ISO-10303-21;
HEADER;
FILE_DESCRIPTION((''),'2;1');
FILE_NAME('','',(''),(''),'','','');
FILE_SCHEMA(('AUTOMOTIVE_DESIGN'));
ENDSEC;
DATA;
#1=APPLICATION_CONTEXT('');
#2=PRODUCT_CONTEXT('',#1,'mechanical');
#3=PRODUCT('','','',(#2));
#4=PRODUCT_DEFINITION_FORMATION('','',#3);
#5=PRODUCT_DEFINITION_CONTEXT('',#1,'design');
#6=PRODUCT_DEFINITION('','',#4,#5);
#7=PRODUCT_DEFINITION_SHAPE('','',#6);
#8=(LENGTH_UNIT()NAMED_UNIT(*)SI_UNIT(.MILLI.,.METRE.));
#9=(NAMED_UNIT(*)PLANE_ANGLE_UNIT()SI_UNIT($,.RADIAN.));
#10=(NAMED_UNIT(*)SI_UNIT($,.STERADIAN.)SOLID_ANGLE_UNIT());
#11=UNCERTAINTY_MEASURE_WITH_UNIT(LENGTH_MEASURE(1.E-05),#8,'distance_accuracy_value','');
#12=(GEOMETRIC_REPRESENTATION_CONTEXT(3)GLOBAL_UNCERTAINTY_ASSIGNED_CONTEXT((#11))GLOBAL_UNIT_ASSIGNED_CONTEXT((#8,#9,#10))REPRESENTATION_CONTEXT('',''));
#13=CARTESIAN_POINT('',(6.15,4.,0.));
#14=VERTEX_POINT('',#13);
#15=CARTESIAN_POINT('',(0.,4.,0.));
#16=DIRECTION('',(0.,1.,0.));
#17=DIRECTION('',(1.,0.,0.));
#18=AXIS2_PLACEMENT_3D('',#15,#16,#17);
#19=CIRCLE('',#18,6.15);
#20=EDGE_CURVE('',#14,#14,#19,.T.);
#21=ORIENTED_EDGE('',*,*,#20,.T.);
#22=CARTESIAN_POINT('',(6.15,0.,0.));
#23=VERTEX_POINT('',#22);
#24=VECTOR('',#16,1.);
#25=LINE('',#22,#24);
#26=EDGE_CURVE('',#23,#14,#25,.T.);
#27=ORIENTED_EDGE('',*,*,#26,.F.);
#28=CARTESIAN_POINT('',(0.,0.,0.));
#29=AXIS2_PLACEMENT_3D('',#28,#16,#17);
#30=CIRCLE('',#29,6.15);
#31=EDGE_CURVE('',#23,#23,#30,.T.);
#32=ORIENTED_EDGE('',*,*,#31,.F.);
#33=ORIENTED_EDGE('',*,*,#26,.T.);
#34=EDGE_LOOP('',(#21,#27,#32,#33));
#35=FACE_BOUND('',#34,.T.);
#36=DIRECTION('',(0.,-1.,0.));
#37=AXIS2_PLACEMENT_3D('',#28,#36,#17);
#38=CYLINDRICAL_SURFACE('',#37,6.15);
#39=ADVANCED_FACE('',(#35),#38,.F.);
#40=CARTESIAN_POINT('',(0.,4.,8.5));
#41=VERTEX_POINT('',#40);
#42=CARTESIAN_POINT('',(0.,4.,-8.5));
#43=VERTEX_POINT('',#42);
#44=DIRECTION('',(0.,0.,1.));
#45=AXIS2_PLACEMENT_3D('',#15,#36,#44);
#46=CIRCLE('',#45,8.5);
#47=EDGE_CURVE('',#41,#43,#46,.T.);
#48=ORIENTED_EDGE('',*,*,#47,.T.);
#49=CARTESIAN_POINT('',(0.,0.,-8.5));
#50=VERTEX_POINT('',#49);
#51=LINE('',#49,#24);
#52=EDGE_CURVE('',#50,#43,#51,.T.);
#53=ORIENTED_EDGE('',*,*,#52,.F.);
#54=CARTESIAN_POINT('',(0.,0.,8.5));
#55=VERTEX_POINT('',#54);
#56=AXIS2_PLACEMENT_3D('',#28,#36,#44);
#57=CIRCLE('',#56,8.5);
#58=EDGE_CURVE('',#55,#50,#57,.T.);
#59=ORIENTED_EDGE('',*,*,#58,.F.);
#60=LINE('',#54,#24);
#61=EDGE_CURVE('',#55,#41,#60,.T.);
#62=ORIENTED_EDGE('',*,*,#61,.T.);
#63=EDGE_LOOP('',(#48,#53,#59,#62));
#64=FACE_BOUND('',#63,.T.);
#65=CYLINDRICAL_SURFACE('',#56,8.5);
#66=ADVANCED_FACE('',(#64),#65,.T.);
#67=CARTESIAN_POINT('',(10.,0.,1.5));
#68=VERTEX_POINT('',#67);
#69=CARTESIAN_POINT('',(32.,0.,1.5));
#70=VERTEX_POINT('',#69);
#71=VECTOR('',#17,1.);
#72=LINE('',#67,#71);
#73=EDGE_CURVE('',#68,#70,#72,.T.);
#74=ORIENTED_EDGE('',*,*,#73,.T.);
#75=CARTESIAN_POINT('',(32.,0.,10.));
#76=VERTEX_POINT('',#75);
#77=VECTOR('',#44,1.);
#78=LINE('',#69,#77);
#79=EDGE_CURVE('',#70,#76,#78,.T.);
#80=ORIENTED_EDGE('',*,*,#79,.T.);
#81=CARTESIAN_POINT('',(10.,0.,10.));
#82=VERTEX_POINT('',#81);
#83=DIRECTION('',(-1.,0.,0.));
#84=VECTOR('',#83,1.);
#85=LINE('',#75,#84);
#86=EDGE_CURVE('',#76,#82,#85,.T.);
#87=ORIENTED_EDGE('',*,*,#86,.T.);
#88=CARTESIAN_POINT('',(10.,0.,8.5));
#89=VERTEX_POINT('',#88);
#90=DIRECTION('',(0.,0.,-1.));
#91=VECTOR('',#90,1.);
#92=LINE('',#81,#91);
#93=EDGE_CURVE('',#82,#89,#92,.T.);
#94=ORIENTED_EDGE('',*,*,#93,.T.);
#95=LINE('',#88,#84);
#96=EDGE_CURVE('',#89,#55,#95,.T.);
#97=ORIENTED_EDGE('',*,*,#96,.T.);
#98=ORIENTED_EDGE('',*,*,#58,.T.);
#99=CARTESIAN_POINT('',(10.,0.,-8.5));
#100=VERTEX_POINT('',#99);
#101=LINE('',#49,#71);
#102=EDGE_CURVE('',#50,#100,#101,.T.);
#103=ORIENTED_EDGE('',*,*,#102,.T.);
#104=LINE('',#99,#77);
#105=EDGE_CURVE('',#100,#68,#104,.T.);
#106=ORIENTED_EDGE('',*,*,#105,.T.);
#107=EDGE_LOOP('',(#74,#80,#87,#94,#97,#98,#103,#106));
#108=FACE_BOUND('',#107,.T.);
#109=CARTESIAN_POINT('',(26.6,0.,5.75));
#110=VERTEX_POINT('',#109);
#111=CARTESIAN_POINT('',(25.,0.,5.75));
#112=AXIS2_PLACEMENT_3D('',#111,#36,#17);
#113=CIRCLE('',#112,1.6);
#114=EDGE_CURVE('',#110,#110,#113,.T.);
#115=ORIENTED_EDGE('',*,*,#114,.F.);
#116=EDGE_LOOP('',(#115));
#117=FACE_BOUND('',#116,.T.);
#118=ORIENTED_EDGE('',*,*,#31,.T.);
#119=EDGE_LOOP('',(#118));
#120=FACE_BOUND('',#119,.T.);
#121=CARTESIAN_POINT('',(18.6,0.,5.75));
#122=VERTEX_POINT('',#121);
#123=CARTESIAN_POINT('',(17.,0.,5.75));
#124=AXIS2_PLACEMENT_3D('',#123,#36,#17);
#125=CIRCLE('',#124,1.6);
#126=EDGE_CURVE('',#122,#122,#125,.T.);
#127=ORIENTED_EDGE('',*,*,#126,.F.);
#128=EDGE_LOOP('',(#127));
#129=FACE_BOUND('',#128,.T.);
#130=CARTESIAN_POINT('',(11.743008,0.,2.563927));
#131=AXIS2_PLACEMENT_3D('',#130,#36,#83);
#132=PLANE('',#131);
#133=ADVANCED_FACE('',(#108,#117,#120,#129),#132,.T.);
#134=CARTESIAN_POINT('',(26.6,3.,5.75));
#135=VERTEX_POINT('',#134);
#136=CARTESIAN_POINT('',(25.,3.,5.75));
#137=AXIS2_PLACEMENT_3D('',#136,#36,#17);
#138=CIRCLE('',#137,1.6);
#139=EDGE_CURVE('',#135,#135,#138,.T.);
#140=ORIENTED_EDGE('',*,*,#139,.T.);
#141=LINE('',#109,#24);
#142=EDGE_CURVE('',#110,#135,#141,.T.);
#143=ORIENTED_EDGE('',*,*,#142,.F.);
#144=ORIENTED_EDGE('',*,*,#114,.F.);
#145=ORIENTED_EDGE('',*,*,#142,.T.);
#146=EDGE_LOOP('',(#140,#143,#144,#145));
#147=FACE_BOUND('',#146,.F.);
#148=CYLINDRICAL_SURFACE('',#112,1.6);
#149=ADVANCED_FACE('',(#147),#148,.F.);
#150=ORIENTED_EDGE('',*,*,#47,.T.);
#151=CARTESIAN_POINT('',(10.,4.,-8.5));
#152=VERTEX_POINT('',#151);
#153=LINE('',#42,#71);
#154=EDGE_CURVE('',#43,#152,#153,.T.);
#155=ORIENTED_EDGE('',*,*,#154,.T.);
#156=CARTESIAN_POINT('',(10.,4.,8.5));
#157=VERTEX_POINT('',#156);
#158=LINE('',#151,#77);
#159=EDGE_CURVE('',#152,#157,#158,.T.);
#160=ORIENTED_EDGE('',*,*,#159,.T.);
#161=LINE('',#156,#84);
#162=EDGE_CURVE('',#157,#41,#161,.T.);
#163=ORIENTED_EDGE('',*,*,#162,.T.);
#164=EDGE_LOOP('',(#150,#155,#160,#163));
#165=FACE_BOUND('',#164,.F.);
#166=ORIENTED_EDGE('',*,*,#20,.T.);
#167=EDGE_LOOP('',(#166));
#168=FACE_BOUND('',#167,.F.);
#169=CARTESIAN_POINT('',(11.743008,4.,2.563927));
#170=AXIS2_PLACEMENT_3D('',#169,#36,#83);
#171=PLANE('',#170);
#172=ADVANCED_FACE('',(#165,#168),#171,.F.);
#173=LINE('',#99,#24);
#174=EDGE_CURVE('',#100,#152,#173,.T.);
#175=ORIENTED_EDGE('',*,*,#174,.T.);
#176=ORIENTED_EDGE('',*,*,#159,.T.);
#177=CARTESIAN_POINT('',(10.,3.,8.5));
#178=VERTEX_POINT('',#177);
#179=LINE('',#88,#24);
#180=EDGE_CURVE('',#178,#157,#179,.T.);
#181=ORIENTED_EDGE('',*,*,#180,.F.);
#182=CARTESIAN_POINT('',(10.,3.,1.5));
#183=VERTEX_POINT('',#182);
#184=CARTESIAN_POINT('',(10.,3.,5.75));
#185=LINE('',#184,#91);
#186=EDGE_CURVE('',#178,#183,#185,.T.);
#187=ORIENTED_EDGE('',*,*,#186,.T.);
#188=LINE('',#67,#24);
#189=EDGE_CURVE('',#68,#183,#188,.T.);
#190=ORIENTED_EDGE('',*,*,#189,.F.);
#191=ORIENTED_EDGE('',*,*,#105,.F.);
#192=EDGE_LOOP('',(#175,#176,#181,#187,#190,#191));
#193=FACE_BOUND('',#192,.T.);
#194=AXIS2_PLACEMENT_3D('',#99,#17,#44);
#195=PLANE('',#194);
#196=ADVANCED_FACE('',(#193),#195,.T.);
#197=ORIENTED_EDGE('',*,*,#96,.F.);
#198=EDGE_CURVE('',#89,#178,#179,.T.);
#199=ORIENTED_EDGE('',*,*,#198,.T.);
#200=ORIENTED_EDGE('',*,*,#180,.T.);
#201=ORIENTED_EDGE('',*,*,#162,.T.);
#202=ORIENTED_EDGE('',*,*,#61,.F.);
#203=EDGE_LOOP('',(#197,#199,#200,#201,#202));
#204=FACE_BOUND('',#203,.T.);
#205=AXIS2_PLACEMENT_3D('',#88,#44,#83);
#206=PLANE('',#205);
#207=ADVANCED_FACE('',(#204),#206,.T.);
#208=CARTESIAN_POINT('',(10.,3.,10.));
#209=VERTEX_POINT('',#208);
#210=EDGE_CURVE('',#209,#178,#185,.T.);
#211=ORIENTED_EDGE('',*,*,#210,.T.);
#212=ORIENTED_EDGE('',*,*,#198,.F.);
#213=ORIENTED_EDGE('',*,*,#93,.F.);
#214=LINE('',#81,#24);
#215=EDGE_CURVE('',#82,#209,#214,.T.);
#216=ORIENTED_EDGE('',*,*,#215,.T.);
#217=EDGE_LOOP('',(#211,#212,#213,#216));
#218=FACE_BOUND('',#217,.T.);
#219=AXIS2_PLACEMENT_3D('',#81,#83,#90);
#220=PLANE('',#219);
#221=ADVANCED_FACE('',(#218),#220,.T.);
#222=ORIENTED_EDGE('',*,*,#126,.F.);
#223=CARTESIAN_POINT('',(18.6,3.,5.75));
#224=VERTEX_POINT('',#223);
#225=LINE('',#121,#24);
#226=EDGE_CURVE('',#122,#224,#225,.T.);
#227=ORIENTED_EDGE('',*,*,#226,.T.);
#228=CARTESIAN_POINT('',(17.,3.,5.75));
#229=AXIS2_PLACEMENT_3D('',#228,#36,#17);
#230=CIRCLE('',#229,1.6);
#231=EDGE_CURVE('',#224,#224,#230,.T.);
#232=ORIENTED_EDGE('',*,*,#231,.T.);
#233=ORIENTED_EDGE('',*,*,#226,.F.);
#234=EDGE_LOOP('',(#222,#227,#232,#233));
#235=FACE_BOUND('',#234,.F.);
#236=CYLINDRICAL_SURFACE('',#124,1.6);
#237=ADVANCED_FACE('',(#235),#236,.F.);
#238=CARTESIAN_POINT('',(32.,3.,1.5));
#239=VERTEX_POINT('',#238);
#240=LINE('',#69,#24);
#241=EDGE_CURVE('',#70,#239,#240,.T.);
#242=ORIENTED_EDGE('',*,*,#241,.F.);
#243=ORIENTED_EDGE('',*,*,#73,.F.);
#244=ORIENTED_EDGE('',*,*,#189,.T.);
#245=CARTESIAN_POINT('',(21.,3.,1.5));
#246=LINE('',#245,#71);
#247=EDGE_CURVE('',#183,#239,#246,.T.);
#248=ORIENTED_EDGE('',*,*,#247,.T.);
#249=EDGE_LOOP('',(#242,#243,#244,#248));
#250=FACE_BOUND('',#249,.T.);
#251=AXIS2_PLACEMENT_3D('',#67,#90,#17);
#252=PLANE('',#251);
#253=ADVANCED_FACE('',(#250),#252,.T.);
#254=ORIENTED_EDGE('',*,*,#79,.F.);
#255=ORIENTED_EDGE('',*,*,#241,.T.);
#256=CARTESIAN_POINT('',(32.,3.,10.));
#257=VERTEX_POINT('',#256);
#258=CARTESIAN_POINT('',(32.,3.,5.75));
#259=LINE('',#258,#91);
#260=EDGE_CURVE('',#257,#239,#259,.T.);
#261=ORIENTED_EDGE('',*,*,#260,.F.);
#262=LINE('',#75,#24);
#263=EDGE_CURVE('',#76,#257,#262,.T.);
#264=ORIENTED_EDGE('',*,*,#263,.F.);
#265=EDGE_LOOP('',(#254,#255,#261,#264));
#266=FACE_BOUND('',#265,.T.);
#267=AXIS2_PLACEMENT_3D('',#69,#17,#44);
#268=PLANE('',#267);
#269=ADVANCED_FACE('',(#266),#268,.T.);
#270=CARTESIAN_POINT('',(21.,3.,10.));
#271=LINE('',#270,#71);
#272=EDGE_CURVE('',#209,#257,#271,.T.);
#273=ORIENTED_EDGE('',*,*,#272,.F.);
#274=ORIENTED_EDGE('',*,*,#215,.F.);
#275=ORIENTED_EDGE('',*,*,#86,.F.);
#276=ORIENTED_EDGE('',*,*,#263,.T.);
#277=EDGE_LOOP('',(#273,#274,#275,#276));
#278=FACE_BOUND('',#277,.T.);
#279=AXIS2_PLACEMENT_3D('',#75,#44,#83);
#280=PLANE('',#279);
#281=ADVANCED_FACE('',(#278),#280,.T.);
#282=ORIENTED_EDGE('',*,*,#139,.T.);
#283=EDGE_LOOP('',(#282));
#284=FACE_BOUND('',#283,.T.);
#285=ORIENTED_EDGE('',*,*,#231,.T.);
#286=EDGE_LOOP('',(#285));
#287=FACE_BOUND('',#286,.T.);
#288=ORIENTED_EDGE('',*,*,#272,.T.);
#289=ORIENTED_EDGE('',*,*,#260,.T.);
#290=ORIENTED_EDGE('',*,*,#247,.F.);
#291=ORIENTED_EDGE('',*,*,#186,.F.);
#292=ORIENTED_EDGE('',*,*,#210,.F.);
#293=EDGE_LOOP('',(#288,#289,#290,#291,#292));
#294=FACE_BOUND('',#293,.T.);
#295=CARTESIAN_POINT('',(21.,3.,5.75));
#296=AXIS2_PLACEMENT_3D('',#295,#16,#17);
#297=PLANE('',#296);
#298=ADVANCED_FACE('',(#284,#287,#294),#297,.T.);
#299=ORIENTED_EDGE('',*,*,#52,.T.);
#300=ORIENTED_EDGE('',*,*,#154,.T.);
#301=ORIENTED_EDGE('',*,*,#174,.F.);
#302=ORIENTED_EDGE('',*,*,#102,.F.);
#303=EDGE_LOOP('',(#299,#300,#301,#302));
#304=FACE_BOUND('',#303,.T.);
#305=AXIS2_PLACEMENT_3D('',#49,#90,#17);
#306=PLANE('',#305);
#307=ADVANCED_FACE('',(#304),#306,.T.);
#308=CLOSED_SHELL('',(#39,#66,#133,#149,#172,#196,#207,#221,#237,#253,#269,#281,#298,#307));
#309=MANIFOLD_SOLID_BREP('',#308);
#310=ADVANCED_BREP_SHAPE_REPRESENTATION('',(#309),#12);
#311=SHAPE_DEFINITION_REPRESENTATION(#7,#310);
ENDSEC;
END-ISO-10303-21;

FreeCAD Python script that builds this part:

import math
import FreeCAD as App
import Part
import Sketcher

V = App.Vector
Q = App.Units.Quantity

doc = App.newDocument("Part")
body = doc.addObject("PartDesign::Body", "Body")

sketch1 = body.newObject("Sketcher::SketchObject", "Sketch")
sketch1.AttachmentSupport = (doc.getObject("XZ_Plane"), [""])
sketch1.MapMode = "FlatFace"
sketch1.addGeometry([
    Part.LineSegment(V(32, 1.5, 0), V(10, 1.5, 0)),
    Part.LineSegment(V(10, 1.5, 0), V(10, -8.5, 0)),
    Part.LineSegment(V(10, -8.5, 0), V(0, -8.5, 0)),
    Part.ArcOfCircle(Part.Circle(V(0, 0, 0), V(0, 0, 1), 8.5), math.radians(90), math.radians(270)),
    Part.LineSegment(V(0, 8.5, 0), V(10, 8.5, 0)),
    Part.LineSegment(V(10, 8.5, 0), V(10, 10, 0)),
    Part.LineSegment(V(10, 10, 0), V(32, 10, 0)),
    Part.LineSegment(V(32, 10, 0), V(32, 1.5, 0)),
    Part.Circle(V(0, 0, 0), V(0, 0, 1), 6.15),
], False)
sketch1.addConstraint([
    Sketcher.Constraint("Coincident", 0, 2, 1, 1),
    Sketcher.Constraint("Coincident", 1, 2, 2, 1),
    Sketcher.Constraint("Tangent", 2, 2, 3, 2),
    Sketcher.Constraint("Tangent", 3, 1, 4, 1),
    Sketcher.Constraint("Coincident", 4, 2, 5, 1),
    Sketcher.Constraint("Coincident", 5, 2, 6, 1),
    Sketcher.Constraint("Coincident", 6, 2, 7, 1),
    Sketcher.Constraint("Coincident", 7, 2, 0, 1),
    Sketcher.Constraint("Horizontal", 0),
    Sketcher.Constraint("Vertical", 1),
    Sketcher.Constraint("Horizontal", 2),
    Sketcher.Constraint("Horizontal", 4),
    Sketcher.Constraint("Vertical", 5),
    Sketcher.Constraint("Horizontal", 6),
    Sketcher.Constraint("Vertical", 7),
    Sketcher.Constraint("Coincident", 3, 3, -1, 1),
    Sketcher.Constraint("Coincident", 8, 3, -1, 1),
    Sketcher.Constraint("Vertical", 1, 2, 4, 2),
    Sketcher.Constraint("Equal", 4, 1),
    Sketcher.Constraint("Diameter", 8, Q("12.3 mm")),
    Sketcher.Constraint("Radius", 3, Q("8.5 mm")),
    Sketcher.Constraint("DistanceX", 0, 2, 0, 1, Q("22 mm")),
    Sketcher.Constraint("DistanceX", 2, 2, 2, 1, Q("10 mm")),
    Sketcher.Constraint("DistanceY", 5, 1, 5, 2, Q("1.5 mm")),
])
pad1 = body.newObject("PartDesign::Pad", "Pad")
pad1.Profile = sketch1
pad1.Length = 4
pad1.Reversed = True

sketch2 = body.newObject("Sketcher::SketchObject", "Sketch001")
sketch2.AttachmentSupport = (doc.getObject("XZ_Plane"), [""])
sketch2.MapMode = "FlatFace"
sketch2.AttachmentOffset = App.Placement(V(0, 0, -4), App.Rotation())
sketch2.addGeometry([
    Part.LineSegment(V(10, 1.5, 0), V(10, 10, 0)),
    Part.LineSegment(V(10, 10, 0), V(32, 10, 0)),
    Part.LineSegment(V(32, 10, 0), V(32, 1.5, 0)),
    Part.LineSegment(V(32, 1.5, 0), V(10, 1.5, 0)),
], False)
sketch2.addConstraint([
    Sketcher.Constraint("Coincident", 0, 2, 1, 1),
    Sketcher.Constraint("Coincident", 1, 2, 2, 1),
    Sketcher.Constraint("Coincident", 2, 2, 3, 1),
    Sketcher.Constraint("Coincident", 3, 2, 0, 1),
    Sketcher.Constraint("Vertical", 0),
    Sketcher.Constraint("Horizontal", 1),
    Sketcher.Constraint("Vertical", 2),
    Sketcher.Constraint("Horizontal", 3),
    Sketcher.Constraint("DistanceX", 1, 1, 1, 2, Q("22 mm")),
    Sketcher.Constraint("DistanceY", 0, 1, 0, 2, Q("8.5 mm")),
    Sketcher.Constraint("DistanceX", -1, 1, 0, 2, Q("10 mm")),
    Sketcher.Constraint("DistanceY", -1, 1, 0, 2, Q("10 mm")),
])
pocket1 = body.newObject("PartDesign::Pocket", "Pocket")
pocket1.Profile = sketch2
pocket1.Length = 1
pocket1.Reversed = True

sketch3 = body.newObject("Sketcher::SketchObject", "Sketch002")
sketch3.AttachmentSupport = (doc.getObject("XZ_Plane"), [""])
sketch3.MapMode = "FlatFace"
sketch3.addGeometry([
    Part.Circle(V(17, 5.75, 0), V(0, 0, 1), 1.6),
    Part.Circle(V(25, 5.75, 0), V(0, 0, 1), 1.6),
], False)
sketch3.addConstraint([
    Sketcher.Constraint("Equal", 0, 1),
    Sketcher.Constraint("Horizontal", 0, 3, 1, 3),
    Sketcher.Constraint("Diameter", 0, Q("3.2 mm")),
    Sketcher.Constraint("DistanceX", -1, 1, 0, 3, Q("17 mm")),
    Sketcher.Constraint("DistanceX", -1, 1, 1, 3, Q("25 mm")),
    Sketcher.Constraint("DistanceY", -1, 1, 0, 3, Q("5.75 mm")),
])
pocket2 = body.newObject("PartDesign::Pocket", "Pocket001")
pocket2.Profile = sketch3
pocket2.Type = "ThroughAll"

doc.recompute()
